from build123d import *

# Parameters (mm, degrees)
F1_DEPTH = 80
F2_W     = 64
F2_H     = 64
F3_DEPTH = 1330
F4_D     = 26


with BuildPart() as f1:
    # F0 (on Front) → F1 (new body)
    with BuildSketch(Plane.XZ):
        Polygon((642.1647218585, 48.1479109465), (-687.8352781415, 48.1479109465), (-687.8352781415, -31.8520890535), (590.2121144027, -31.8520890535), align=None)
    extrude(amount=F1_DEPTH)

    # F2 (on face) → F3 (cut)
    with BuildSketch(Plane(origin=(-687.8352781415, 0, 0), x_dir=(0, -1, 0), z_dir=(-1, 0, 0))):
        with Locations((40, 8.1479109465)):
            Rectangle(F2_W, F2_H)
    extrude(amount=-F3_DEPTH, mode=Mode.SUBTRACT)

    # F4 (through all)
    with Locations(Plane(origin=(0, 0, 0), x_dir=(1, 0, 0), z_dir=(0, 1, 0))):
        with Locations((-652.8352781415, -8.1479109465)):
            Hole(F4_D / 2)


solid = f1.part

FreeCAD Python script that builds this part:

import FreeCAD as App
import Part
import Sketcher

V = App.Vector
Q = App.Units.Quantity


def add_polygon(sketch, points):
    """Adds a closed chain of lines whose ends are joined by coincident constraints."""
    first, n = sketch.GeometryCount, len(points)
    for a, b in zip(points, points[1:] + points[:1]):
        sketch.addGeometry(Part.LineSegment(App.Vector(*a, 0), App.Vector(*b, 0)), False)
    for i in range(n):
        sketch.addConstraint(Sketcher.Constraint("Coincident", first + i, 2, first + (i + 1) % n, 1))

doc = App.newDocument("Part")
body = doc.addObject("PartDesign::Body", "Body")

sketch1 = doc.addObject("Sketcher::SketchObject", "Sketch")
body.addObject(sketch1)
sketch1.AttachmentSupport = (doc.XZ_Plane, [""])
sketch1.MapMode = "FlatFace"
add_polygon(sketch1, [(642, 48), (-688, 48), (-688, -32), (590, -32)])
sketch1.addConstraint(Sketcher.Constraint("Horizontal", 0))
sketch1.addConstraint(Sketcher.Constraint("Vertical", 1))
sketch1.addConstraint(Sketcher.Constraint("Horizontal", 2))
sketch1.addConstraint(Sketcher.Constraint("DistanceX", 0, 2, 0, 1, Q("1330 mm")))
sketch1.addConstraint(Sketcher.Constraint("DistanceY", 1, 2, 1, 1, Q("80 mm")))
sketch1.addConstraint(Sketcher.Constraint("Angle", 3, Q("57 deg")))
sketch1.addConstraint(Sketcher.Constraint("DistanceX", 0, 2, -1, 1, Q("687.835278 mm")))
sketch1.addConstraint(Sketcher.Constraint("DistanceY", -1, 1, 0, 2, Q("48.147911 mm")))
pad1 = doc.addObject("PartDesign::Pad", "Pad")
body.addObject(pad1)
pad1.Profile = sketch1
pad1.Length = 80

sketch2 = doc.addObject("Sketcher::SketchObject", "Sketch001")
body.addObject(sketch2)
sketch2.AttachmentSupport = (doc.YZ_Plane, [""])
sketch2.MapMode = "FlatFace"
sketch2.AttachmentOffset = App.Placement(V(0, 0, -687.835278), App.Rotation())
add_polygon(sketch2, [(-8, 40), (-8, -24), (-72, -24), (-72, 40)])
sketch2.addConstraint(Sketcher.Constraint("Vertical", 0))
sketch2.addConstraint(Sketcher.Constraint("Horizontal", 1))
sketch2.addConstraint(Sketcher.Constraint("Vertical", 2))
sketch2.addConstraint(Sketcher.Constraint("Horizontal", 3))
sketch2.addConstraint(Sketcher.Constraint("Equal", 3, 0))
sketch2.addConstraint(Sketcher.Constraint("DistanceX", 1, 2, 1, 1, Q("64 mm")))
sketch2.addConstraint(Sketcher.Constraint("DistanceX", 0, 2, -1, 1, Q("8 mm")))
sketch2.addConstraint(Sketcher.Constraint("DistanceY", 0, 2, -1, 1, Q("23.852089 mm")))
pocket1 = doc.addObject("PartDesign::Pocket", "Pocket")
body.addObject(pocket1)
pocket1.Profile = sketch2
pocket1.Length = 1330
pocket1.Reversed = True

sketch3 = doc.addObject("Sketcher::SketchObject", "Sketch002")
body.addObject(sketch3)
sketch3.AttachmentSupport = (doc.XZ_Plane, [""])
sketch3.MapMode = "FlatFace"
sketch3.addGeometry(Part.Circle(V(-653, 8, 0), V(0, 0, 1), 13), False)
sketch3.addConstraint(Sketcher.Constraint("Diameter", 0, Q("26 mm")))
sketch3.addConstraint(Sketcher.Constraint("DistanceX", 0, 3, -1, 1, Q("652.835278 mm")))
sketch3.addConstraint(Sketcher.Constraint("DistanceY", -1, 1, 0, 3, Q("8.147911 mm")))
doc.recompute()
hole = doc.addObject("PartDesign::Hole", "Hole")
body.addObject(hole)
hole.Profile = sketch3
hole.ThreadType = "None"
hole.Diameter = 26
hole.DepthType = "ThroughAll"
hole.Reversed = True

doc.recompute()
